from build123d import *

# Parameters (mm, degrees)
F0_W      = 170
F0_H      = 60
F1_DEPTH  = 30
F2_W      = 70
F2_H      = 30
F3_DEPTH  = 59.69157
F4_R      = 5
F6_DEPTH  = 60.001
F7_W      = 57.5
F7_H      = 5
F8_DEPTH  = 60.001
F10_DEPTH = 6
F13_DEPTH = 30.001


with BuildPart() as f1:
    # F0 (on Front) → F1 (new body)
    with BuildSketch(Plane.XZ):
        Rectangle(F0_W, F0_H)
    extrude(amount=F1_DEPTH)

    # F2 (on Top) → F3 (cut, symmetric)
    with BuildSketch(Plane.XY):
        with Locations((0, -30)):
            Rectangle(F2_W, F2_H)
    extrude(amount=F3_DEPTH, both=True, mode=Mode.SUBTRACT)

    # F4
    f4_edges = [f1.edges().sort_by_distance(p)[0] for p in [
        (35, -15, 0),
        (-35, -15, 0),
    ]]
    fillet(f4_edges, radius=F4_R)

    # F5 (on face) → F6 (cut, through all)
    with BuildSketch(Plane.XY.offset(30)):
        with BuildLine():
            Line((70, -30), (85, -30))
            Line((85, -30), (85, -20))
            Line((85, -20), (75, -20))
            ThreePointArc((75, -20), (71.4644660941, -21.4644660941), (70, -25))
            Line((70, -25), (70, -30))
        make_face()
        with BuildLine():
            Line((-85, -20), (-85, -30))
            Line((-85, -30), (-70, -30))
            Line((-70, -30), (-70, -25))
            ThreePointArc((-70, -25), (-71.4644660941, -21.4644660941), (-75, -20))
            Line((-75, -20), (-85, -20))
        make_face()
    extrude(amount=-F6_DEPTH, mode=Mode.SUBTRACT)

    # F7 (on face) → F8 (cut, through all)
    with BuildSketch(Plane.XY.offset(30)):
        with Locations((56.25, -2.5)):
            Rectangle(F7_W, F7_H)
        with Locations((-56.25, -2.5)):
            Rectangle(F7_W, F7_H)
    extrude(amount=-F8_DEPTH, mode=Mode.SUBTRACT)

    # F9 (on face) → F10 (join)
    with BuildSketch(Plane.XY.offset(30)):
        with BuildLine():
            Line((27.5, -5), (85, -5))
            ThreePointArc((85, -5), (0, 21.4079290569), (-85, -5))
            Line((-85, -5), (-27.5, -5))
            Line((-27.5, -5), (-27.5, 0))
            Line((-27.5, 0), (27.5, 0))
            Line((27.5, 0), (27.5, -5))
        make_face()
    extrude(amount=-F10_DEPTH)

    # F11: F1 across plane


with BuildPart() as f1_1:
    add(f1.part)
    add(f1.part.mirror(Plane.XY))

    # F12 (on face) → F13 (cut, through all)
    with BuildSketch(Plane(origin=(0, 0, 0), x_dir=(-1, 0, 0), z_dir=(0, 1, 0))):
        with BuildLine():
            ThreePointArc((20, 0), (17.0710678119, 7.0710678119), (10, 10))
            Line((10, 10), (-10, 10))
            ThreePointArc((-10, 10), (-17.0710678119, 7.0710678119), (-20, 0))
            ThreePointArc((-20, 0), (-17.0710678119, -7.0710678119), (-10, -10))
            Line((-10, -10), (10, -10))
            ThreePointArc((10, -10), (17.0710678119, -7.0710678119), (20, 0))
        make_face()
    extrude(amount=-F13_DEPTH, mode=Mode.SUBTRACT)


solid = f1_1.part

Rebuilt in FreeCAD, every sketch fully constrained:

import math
import FreeCAD as App
import Part
import Sketcher

V = App.Vector


def edges_at(feature, points):
    """Names of the edges that pass closest to the given points."""
    edges = feature.Shape.Edges
    near = lambda p: min(range(len(edges)), key=lambda i: edges[i].distToShape(Part.Vertex(*p))[0])
    return sorted({f"Edge{near(p) + 1}" for p in points})


def add_polygon(sketch, points):
    """Adds a closed chain of lines whose ends are joined by coincident constraints."""
    first, n = sketch.GeometryCount, len(points)
    for a, b in zip(points, points[1:] + points[:1]):
        sketch.addGeometry(Part.LineSegment(App.Vector(*a, 0), App.Vector(*b, 0)), False)
    for i in range(n):
        sketch.addConstraint(Sketcher.Constraint("Coincident", first + i, 2, first + (i + 1) % n, 1))

doc = App.newDocument("Part")
body = doc.addObject("PartDesign::Body", "Body")

# Sketch on XZ plane
sketch1 = body.newObject("Sketcher::SketchObject", "Sketch")
sketch1.AttachmentSupport = (doc.getObject("XZ_Plane"), [""])
sketch1.MapMode = "FlatFace"
add_polygon(sketch1, [(-85, 30), (-85, -30), (85, -30), (85, 30)])  # lines 0-3
sketch1.addConstraint([
    Sketcher.Constraint("Vertical", 0),
    Sketcher.Constraint("Horizontal", 1),
    Sketcher.Constraint("Vertical", 2),
    Sketcher.Constraint("Horizontal", 3),
    Sketcher.Constraint("Symmetric", 0, 2, 2, 2, -1, 1),
    Sketcher.Constraint("DistanceX", 1, 1, 1, 2, 170.0),
    Sketcher.Constraint("DistanceY", 0, 2, 0, 1, 60.0),
])
pad1 = body.newObject("PartDesign::Pad", "Pad")
pad1.Profile = sketch1
pad1.Length = 30

# Sketch on XY plane
sketch2 = body.newObject("Sketcher::SketchObject", "Sketch001")
sketch2.AttachmentSupport = (doc.getObject("XY_Plane"), [""])
sketch2.MapMode = "FlatFace"
add_polygon(sketch2, [(-35, -15), (-35, -45), (35, -45), (35, -15)])  # lines 0-3
sketch2.addConstraint([
    Sketcher.Constraint("Vertical", 0),
    Sketcher.Constraint("Horizontal", 1),
    Sketcher.Constraint("Vertical", 2),
    Sketcher.Constraint("Horizontal", 3),
    Sketcher.Constraint("DistanceX", 1, 1, 1, 2, 70.0),
    Sketcher.Constraint("DistanceY", 0, 2, 0, 1, 30.0),
    Sketcher.Constraint("DistanceX", 0, 2, -1, 1, 35.0),
    Sketcher.Constraint("DistanceY", 0, 2, -1, 1, 45.0),
])
pocket1 = body.newObject("PartDesign::Pocket", "Pocket")
pocket1.Profile = sketch2
pocket1.Length = 119.38314
pocket1.Midplane = True
doc.recompute()

fillet = body.newObject("PartDesign::Fillet", "Fillet")
fillet.Base = (pocket1, edges_at(pocket1, [(35, -15, 0), (-35, -15, 0)]))
fillet.Radius = 5

# Sketch on XY plane
sketch3 = body.newObject("Sketcher::SketchObject", "Sketch002")
sketch3.AttachmentSupport = (doc.getObject("XY_Plane"), [""])
sketch3.MapMode = "FlatFace"
sketch3.AttachmentOffset = App.Placement(V(0, 0, 30), App.Rotation())
sketch3.addGeometry([
    Part.LineSegment(V(70, -30, 0), V(85, -30, 0)),  # 0
    Part.LineSegment(V(85, -30, 0), V(85, -20, 0)),  # 1
    Part.LineSegment(V(85, -20, 0), V(75, -20, 0)),  # 2
    Part.ArcOfCircle(Part.Circle(V(75, -25, 0), V(0, 0, 1), 5), math.radians(90), math.radians(180)),  # 3
    Part.LineSegment(V(70, -25, 0), V(70, -30, 0)),  # 4
    Part.LineSegment(V(-85, -20, 0), V(-85, -30, 0)),  # 5
    Part.LineSegment(V(-85, -30, 0), V(-70, -30, 0)),  # 6
    Part.LineSegment(V(-70, -30, 0), V(-70, -25, 0)),  # 7
    Part.ArcOfCircle(Part.Circle(V(-75, -25, 0), V(0, 0, 1), 5), math.radians(0), math.radians(90)),  # 8
    Part.LineSegment(V(-75, -20, 0), V(-85, -20, 0)),  # 9
], False)
sketch3.addConstraint([
    Sketcher.Constraint("Coincident", 0, 2, 1, 1),
    Sketcher.Constraint("Coincident", 1, 2, 2, 1),
    Sketcher.Constraint("Tangent", 2, 2, 3, 1),
    Sketcher.Constraint("Tangent", 3, 2, 4, 1),
    Sketcher.Constraint("Coincident", 4, 2, 0, 1),
    Sketcher.Constraint("Coincident", 5, 2, 6, 1),
    Sketcher.Constraint("Coincident", 6, 2, 7, 1),
    Sketcher.Constraint("Tangent", 7, 2, 8, 1),
    Sketcher.Constraint("Tangent", 8, 2, 9, 1),
    Sketcher.Constraint("Coincident", 9, 2, 5, 1),
    Sketcher.Constraint("Horizontal", 0),
    Sketcher.Constraint("Vertical", 1),
    Sketcher.Constraint("Horizontal", 2),
    Sketcher.Constraint("Vertical", 4),
    Sketcher.Constraint("Vertical", 5),
    Sketcher.Constraint("Horizontal", 6),
    Sketcher.Constraint("Vertical", 7),
    Sketcher.Constraint("Horizontal", 9),
    Sketcher.Constraint("Equal", 3, 8),
    Sketcher.Constraint("Symmetric", 3, 3, 8, 3, -2),
    Sketcher.Constraint("Symmetric", 0, 2, 5, 2, -2),
    Sketcher.Constraint("Equal", 9, 1),
    Sketcher.Constraint("Radius", 3, 5.0),
    Sketcher.Constraint("DistanceX", 0, 1, 0, 2, 15.0),
    Sketcher.Constraint("DistanceX", -1, 1, 3, 3, 75.0),
    Sketcher.Constraint("DistanceY", 3, 3, -1, 1, 25.0),
])
pocket2 = body.newObject("PartDesign::Pocket", "Pocket001")
pocket2.Profile = sketch3
pocket2.Type = "ThroughAll"

# Sketch on XY plane
sketch4 = body.newObject("Sketcher::SketchObject", "Sketch003")
sketch4.AttachmentSupport = (doc.getObject("XY_Plane"), [""])
sketch4.MapMode = "FlatFace"
sketch4.AttachmentOffset = App.Placement(V(0, 0, 30), App.Rotation())
add_polygon(sketch4, [(28, 0), (28, -5), (85, -5), (85, 0)])  # lines 0-3
add_polygon(sketch4, [(-85, 0), (-85, -5), (-28, -5), (-28, 0)])  # lines 4-7
sketch4.addConstraint([
    Sketcher.Constraint("Vertical", 0),
    Sketcher.Constraint("Horizontal", 1),
    Sketcher.Constraint("Vertical", 2),
    Sketcher.Constraint("Horizontal", 3),
    Sketcher.Constraint("Vertical", 4),
    Sketcher.Constraint("Horizontal", 5),
    Sketcher.Constraint("Vertical", 6),
    Sketcher.Constraint("Horizontal", 7),
    Sketcher.Constraint("Symmetric", 3, 2, 6, 2, -1, 1),
    Sketcher.Constraint("Symmetric", 1, 2, 4, 2, -2),
    Sketcher.Constraint("PointOnObject", 2, 2, -1),
    Sketcher.Constraint("DistanceY", 0, 2, 0, 1, 5.0),
    Sketcher.Constraint("DistanceX", 1, 1, 1, 2, 57.5),
    Sketcher.Constraint("DistanceX", -1, 1, 1, 2, 85.0),
])
pocket3 = body.newObject("PartDesign::Pocket", "Pocket002")
pocket3.Profile = sketch4
pocket3.Type = "ThroughAll"

# Sketch on XY plane
sketch5 = body.newObject("Sketcher::SketchObject", "Sketch004")
sketch5.AttachmentSupport = (doc.getObject("XY_Plane"), [""])
sketch5.MapMode = "FlatFace"
sketch5.AttachmentOffset = App.Placement(V(0, 0, 30), App.Rotation())
sketch5.addGeometry([
    Part.LineSegment(V(28, -5, 0), V(85, -5, 0)),  # 0
    Part.ArcOfCircle(Part.Circle(V(0, -129, 0), V(0, 0, 1), 150), math.radians(55), math.radians(125)),  # 1
    Part.LineSegment(V(-85, -5, 0), V(-28, -5, 0)),  # 2
    Part.LineSegment(V(-28, -5, 0), V(-28, 0, 0)),  # 3
    Part.LineSegment(V(-28, 0, 0), V(28, 0, 0)),  # 4
    Part.LineSegment(V(28, 0, 0), V(28, -5, 0)),  # 5
], False)
sketch5.addConstraint([
    Sketcher.Constraint("Coincident", 0, 2, 1, 1),
    Sketcher.Constraint("Coincident", 1, 2, 2, 1),
    Sketcher.Constraint("Coincident", 2, 2, 3, 1),
    Sketcher.Constraint("Coincident", 3, 2, 4, 1),
    Sketcher.Constraint("Coincident", 4, 2, 5, 1),
    Sketcher.Constraint("Coincident", 5, 2, 0, 1),
    Sketcher.Constraint("Horizontal", 0),
    Sketcher.Constraint("Horizontal", 2),
    Sketcher.Constraint("Vertical", 3),
    Sketcher.Constraint("Horizontal", 4),
    Sketcher.Constraint("Vertical", 5),
    Sketcher.Constraint("Symmetric", 3, 2, 4, 2, -1, 1),
    Sketcher.Constraint("Symmetric", 0, 2, 1, 2, -2),
    Sketcher.Constraint("Radius", 1, 150.0),
    Sketcher.Constraint("DistanceX", 4, 1, 4, 2, 55.0),
    Sketcher.Constraint("DistanceY", 3, 1, 3, 2, 5.0),
    Sketcher.Constraint("DistanceX", 0, 1, 0, 2, 57.5),
])
pad2 = body.newObject("PartDesign::Pad", "Pad001")
pad2.Profile = sketch5
pad2.Length = 6
pad2.Reversed = True
body2 = doc.addObject("PartDesign::Body", "Body001")
doc.recompute()

body2.BaseFeature = body
doc.recompute()

mirroring = doc.addObject("Part::Mirroring", "Mirroring")
mirroring.Source = body
mirroring.Base = V(0, 0, 0)
mirroring.Normal = V(0, 0, 1)
body3 = doc.addObject("PartDesign::Body", "Body002")
body3.BaseFeature = mirroring
boolean = body2.newObject("PartDesign::Boolean", "Boolean")
boolean.Type = "Fuse"
boolean.addObjects([body3])
doc.recompute()

# Sketch on XZ plane
sketch6 = body2.newObject("Sketcher::SketchObject", "Sketch005")
sketch6.AttachmentSupport = (doc.getObject("XZ_Plane001"), [""])
sketch6.MapMode = "FlatFace"
sketch6.addGeometry([
    Part.ArcOfCircle(Part.Circle(V(-10, 0, 0), V(0, 0, 1), 10), math.radians(90), math.radians(180)),  # 0
    Part.LineSegment(V(-10, 10, 0), V(10, 10, 0)),  # 1
    Part.ArcOfCircle(Part.Circle(V(10, 0, 0), V(0, 0, 1), 10), math.radians(0), math.radians(90)),  # 2
    Part.ArcOfCircle(Part.Circle(V(10, 0, 0), V(0, 0, 1), 10), math.radians(-90), math.radians(0)),  # 3
    Part.LineSegment(V(10, -10, 0), V(-10, -10, 0)),  # 4
    Part.ArcOfCircle(Part.Circle(V(-10, 0, 0), V(0, 0, 1), 10), math.radians(180), math.radians(270)),  # 5
], False)
sketch6.addConstraint([
    Sketcher.Constraint("Tangent", 0, 1, 1, 1),
    Sketcher.Constraint("Tangent", 1, 2, 2, 2),
    Sketcher.Constraint("Tangent", 2, 1, 3, 2),
    Sketcher.Constraint("Tangent", 3, 1, 4, 1),
    Sketcher.Constraint("Tangent", 4, 2, 5, 2),
    Sketcher.Constraint("Tangent", 5, 1, 0, 2),
    Sketcher.Constraint("Horizontal", 1),
    Sketcher.Constraint("Horizontal", 4),
    Sketcher.Constraint("Equal", 0, 2),
    Sketcher.Constraint("Equal", 2, 3),
    Sketcher.Constraint("Symmetric", 0, 3, 2, 3, -1, 1),
    Sketcher.Constraint("PointOnObject", 2, 1, -1),
    Sketcher.Constraint("PointOnObject", 5, 1, -1),
    Sketcher.Constraint("Radius", 0, 10.0),
    Sketcher.Constraint("DistanceX", 1, 1, 1, 2, 20.0),
])
pocket4 = body2.newObject("PartDesign::Pocket", "Pocket003")
pocket4.Profile = sketch6
pocket4.Type = "ThroughAll"
pocket4.Reversed = True
mirroring.Visibility = False

doc.recompute()
